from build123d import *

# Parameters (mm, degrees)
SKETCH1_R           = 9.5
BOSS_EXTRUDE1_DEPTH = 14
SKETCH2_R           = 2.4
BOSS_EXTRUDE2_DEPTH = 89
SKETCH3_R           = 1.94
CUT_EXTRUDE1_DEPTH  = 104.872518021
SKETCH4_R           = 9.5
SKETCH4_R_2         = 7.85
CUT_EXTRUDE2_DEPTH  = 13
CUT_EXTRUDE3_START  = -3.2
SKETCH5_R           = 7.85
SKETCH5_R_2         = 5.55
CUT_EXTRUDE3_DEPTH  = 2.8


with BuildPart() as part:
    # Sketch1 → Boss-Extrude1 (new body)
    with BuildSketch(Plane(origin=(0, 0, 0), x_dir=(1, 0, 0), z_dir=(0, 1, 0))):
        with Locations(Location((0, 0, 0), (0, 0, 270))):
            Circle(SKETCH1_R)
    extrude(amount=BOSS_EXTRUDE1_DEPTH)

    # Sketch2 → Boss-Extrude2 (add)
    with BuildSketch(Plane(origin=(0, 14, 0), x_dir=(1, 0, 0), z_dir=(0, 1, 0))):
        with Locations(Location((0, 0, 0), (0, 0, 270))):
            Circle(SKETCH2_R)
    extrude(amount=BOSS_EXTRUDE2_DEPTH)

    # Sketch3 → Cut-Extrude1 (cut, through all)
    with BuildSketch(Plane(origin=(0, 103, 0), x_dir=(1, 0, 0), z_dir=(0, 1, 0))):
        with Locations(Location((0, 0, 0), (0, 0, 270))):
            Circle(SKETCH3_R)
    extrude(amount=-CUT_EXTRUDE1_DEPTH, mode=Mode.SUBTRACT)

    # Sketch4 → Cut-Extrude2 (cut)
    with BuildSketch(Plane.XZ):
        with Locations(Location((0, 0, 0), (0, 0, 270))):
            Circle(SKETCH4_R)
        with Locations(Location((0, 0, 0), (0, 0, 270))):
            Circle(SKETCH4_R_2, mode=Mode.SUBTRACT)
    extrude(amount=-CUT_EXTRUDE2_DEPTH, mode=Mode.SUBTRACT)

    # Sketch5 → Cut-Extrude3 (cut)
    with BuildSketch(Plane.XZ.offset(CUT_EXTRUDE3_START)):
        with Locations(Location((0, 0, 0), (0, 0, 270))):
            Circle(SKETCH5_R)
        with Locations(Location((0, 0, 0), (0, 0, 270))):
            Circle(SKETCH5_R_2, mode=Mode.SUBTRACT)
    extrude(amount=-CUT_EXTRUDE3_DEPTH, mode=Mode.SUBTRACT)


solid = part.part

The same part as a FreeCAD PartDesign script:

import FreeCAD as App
import Part
import Sketcher
from FreeCAD import Vector

doc = App.newDocument("Part")
body = doc.addObject("PartDesign::Body", "Body")

# Sketch on XZ plane
sketch1 = body.newObject("Sketcher::SketchObject", "Sketch")
sketch1.AttachmentSupport = (doc.getObject("XZ_Plane"), [""])
sketch1.MapMode = "FlatFace"
sketch1.addGeometry(Part.Circle(Vector(0, 0, 0), Vector(0, 0, 1), 10), False)
sketch1.addConstraint([
    Sketcher.Constraint("Coincident", 0, 3, -1, 1),
    Sketcher.Constraint("Diameter", 0, 19.0),
])
pad1 = body.newObject("PartDesign::Pad", "Pad")
pad1.Profile = sketch1
pad1.Length = 14
pad1.Reversed = True

# Sketch on XZ plane
sketch2 = body.newObject("Sketcher::SketchObject", "Sketch001")
sketch2.AttachmentSupport = (doc.getObject("XZ_Plane"), [""])
sketch2.MapMode = "FlatFace"
sketch2.AttachmentOffset = App.Placement(Vector(0, 0, -14), App.Rotation())
sketch2.addGeometry(Part.Circle(Vector(0, 0, 0), Vector(0, 0, 1), 2.4), False)
sketch2.addConstraint([
    Sketcher.Constraint("Coincident", 0, 3, -1, 1),
    Sketcher.Constraint("Diameter", 0, 4.8),
])
pad2 = body.newObject("PartDesign::Pad", "Pad001")
pad2.Profile = sketch2
pad2.Length = 89
pad2.Reversed = True

# Sketch on XZ plane
sketch3 = body.newObject("Sketcher::SketchObject", "Sketch002")
sketch3.AttachmentSupport = (doc.getObject("XZ_Plane"), [""])
sketch3.MapMode = "FlatFace"
sketch3.AttachmentOffset = App.Placement(Vector(0, 0, -103), App.Rotation())
sketch3.addGeometry(Part.Circle(Vector(0, 0, 0), Vector(0, 0, 1), 1.9), False)
sketch3.addConstraint([
    Sketcher.Constraint("Coincident", 0, 3, -1, 1),
    Sketcher.Constraint("Diameter", 0, 3.88),
])
pocket1 = body.newObject("PartDesign::Pocket", "Pocket")
pocket1.Profile = sketch3
pocket1.Type = "ThroughAll"
pocket1.Reversed = True

# Sketch on XZ plane
sketch4 = body.newObject("Sketcher::SketchObject", "Sketch003")
sketch4.AttachmentSupport = (doc.getObject("XZ_Plane"), [""])
sketch4.MapMode = "FlatFace"
sketch4.addGeometry([
    Part.Circle(Vector(0, 0, 0), Vector(0, 0, 1), 10),
    Part.Circle(Vector(0, 0, 0), Vector(0, 0, 1), 8),
], False)
sketch4.addConstraint([
    Sketcher.Constraint("Coincident", 0, 3, -1, 1),
    Sketcher.Constraint("Coincident", 1, 3, -1, 1),
    Sketcher.Constraint("Diameter", 0, 19.0),
    Sketcher.Constraint("Diameter", 1, 15.7),
])
pocket2 = body.newObject("PartDesign::Pocket", "Pocket001")
pocket2.Profile = sketch4
pocket2.Length = 13

# Sketch on XZ plane
sketch5 = body.newObject("Sketcher::SketchObject", "Sketch004")
sketch5.AttachmentSupport = (doc.getObject("XZ_Plane"), [""])
sketch5.MapMode = "FlatFace"
sketch5.AttachmentOffset = App.Placement(Vector(0, 0, -3.2), App.Rotation())
sketch5.addGeometry([
    Part.Circle(Vector(0, 0, 0), Vector(0, 0, 1), 8),
    Part.Circle(Vector(0, 0, 0), Vector(0, 0, 1), 6),
], False)
sketch5.addConstraint([
    Sketcher.Constraint("Coincident", 0, 3, -1, 1),
    Sketcher.Constraint("Coincident", 1, 3, -1, 1),
    Sketcher.Constraint("Diameter", 0, 15.7),
    Sketcher.Constraint("Diameter", 1, 11.1),
])
pocket3 = body.newObject("PartDesign::Pocket", "Pocket002")
pocket3.Profile = sketch5
pocket3.Length = 2.8

doc.recompute()
